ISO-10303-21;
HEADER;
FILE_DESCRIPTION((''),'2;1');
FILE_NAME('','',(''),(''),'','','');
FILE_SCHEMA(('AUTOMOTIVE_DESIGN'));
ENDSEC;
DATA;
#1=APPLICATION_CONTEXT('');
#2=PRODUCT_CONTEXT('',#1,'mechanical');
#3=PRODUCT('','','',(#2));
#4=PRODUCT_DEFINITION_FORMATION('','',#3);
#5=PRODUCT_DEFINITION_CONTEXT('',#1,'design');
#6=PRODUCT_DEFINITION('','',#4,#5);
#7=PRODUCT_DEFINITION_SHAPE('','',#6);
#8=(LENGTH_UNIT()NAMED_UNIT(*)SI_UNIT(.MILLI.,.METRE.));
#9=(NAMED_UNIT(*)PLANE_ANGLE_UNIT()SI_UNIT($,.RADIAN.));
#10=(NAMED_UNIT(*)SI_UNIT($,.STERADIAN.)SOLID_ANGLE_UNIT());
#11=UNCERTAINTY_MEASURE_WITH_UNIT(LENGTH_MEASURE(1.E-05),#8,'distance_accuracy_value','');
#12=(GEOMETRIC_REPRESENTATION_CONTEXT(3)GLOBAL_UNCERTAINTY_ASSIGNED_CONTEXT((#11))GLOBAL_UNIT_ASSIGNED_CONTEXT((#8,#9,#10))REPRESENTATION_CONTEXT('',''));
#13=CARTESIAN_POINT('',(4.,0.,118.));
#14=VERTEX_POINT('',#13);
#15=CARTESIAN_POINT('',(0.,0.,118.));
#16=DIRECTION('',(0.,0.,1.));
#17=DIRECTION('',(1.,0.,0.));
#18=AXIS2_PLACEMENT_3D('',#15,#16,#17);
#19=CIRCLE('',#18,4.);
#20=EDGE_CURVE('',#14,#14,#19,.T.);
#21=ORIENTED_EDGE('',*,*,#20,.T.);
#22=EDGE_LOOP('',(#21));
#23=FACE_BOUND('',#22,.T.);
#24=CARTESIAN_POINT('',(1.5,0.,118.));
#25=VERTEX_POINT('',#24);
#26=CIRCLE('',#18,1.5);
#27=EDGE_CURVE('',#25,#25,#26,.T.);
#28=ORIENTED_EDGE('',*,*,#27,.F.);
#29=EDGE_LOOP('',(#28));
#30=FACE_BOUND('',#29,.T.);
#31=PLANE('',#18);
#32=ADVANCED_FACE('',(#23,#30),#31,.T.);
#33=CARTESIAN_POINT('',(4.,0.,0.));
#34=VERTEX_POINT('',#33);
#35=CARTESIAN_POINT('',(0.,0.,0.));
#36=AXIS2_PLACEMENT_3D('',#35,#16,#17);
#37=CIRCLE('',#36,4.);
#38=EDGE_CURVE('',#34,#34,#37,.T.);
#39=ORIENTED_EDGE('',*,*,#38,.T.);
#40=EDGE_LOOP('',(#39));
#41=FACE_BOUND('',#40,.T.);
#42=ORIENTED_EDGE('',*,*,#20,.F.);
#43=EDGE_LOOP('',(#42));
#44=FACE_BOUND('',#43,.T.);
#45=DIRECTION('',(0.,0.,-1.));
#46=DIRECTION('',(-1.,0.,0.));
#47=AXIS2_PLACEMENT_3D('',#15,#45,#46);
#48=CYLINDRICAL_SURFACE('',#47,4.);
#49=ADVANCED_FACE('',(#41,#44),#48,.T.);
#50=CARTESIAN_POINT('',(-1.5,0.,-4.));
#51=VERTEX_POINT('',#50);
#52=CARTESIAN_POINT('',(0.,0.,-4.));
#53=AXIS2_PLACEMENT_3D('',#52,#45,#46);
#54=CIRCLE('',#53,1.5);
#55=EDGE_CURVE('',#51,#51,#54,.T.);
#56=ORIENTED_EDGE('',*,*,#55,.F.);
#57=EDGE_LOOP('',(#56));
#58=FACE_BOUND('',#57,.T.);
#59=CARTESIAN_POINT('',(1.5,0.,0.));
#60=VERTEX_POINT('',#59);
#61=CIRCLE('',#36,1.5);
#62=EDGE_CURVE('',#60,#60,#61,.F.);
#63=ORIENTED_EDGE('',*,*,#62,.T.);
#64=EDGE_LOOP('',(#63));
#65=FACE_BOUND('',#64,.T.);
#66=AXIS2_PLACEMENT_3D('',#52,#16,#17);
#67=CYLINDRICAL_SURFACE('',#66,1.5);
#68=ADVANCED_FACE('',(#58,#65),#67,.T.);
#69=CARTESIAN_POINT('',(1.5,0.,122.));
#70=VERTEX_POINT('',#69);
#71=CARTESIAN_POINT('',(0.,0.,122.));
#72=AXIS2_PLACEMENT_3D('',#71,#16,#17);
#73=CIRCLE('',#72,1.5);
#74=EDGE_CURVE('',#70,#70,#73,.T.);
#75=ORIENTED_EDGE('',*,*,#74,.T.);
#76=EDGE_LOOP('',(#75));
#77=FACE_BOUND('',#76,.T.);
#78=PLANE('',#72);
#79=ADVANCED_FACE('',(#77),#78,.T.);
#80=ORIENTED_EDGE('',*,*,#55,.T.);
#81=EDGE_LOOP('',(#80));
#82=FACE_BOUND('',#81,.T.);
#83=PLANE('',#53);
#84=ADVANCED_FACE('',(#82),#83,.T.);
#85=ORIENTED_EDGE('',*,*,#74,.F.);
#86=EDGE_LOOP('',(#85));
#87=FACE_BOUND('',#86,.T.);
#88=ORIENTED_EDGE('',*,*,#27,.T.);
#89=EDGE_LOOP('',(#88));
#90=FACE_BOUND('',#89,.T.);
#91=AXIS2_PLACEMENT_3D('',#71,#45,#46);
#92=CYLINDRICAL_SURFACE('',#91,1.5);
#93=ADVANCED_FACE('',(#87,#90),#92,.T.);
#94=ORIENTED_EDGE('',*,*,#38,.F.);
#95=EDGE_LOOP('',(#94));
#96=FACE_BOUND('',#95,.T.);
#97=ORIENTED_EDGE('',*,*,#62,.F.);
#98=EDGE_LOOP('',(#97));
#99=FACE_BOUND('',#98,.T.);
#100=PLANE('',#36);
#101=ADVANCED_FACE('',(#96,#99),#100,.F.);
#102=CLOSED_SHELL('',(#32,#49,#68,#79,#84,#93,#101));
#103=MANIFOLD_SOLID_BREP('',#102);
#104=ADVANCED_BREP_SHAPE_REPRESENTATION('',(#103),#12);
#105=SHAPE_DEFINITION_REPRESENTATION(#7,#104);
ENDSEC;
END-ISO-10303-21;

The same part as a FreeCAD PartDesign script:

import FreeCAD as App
import Part
import Sketcher
from FreeCAD import Vector

doc = App.newDocument("Part")
body = doc.addObject("PartDesign::Body", "Body")

# Sketch on XY plane
sketch1 = doc.addObject("Sketcher::SketchObject", "Sketch")
body.addObject(sketch1)
sketch1.AttachmentSupport = (doc.XY_Plane, [""])
sketch1.MapMode = "FlatFace"
sketch1.addGeometry(Part.Circle(Vector(0, 0, 0), Vector(0, 0, 1), 4), False)
sketch1.addConstraint([
    Sketcher.Constraint("Coincident", 0, 3, -1, 1),
    Sketcher.Constraint("Diameter", 0, 8.0),
])
pad1 = doc.addObject("PartDesign::Pad", "Pad")
body.addObject(pad1)
pad1.Profile = sketch1
pad1.Length = 118

# Sketch on XY plane
sketch2 = doc.addObject("Sketcher::SketchObject", "Sketch001")
body.addObject(sketch2)
sketch2.AttachmentSupport = (doc.XY_Plane, [""])
sketch2.MapMode = "FlatFace"
sketch2.addGeometry(Part.Circle(Vector(0, 0, 0), Vector(0, 0, 1), 1.5), False)
sketch2.addConstraint([
    Sketcher.Constraint("Coincident", 0, 3, -1, 1),
    Sketcher.Constraint("Diameter", 0, 3.0),
])
pad2 = doc.addObject("PartDesign::Pad", "Pad001")
body.addObject(pad2)
pad2.Profile = sketch2
pad2.Length = 4
pad2.Reversed = True

# Sketch on XY plane
sketch3 = doc.addObject("Sketcher::SketchObject", "Sketch002")
body.addObject(sketch3)
sketch3.AttachmentSupport = (doc.XY_Plane, [""])
sketch3.MapMode = "FlatFace"
sketch3.AttachmentOffset = App.Placement(Vector(0, 0, 118), App.Rotation())
sketch3.addGeometry(Part.Circle(Vector(0, 0, 0), Vector(0, 0, 1), 1.5), False)
sketch3.addConstraint([
    Sketcher.Constraint("Coincident", 0, 3, -1, 1),
    Sketcher.Constraint("Diameter", 0, 3.0),
])
pad3 = doc.addObject("PartDesign::Pad", "Pad002")
body.addObject(pad3)
pad3.Profile = sketch3
pad3.Length = 4

doc.recompute()
